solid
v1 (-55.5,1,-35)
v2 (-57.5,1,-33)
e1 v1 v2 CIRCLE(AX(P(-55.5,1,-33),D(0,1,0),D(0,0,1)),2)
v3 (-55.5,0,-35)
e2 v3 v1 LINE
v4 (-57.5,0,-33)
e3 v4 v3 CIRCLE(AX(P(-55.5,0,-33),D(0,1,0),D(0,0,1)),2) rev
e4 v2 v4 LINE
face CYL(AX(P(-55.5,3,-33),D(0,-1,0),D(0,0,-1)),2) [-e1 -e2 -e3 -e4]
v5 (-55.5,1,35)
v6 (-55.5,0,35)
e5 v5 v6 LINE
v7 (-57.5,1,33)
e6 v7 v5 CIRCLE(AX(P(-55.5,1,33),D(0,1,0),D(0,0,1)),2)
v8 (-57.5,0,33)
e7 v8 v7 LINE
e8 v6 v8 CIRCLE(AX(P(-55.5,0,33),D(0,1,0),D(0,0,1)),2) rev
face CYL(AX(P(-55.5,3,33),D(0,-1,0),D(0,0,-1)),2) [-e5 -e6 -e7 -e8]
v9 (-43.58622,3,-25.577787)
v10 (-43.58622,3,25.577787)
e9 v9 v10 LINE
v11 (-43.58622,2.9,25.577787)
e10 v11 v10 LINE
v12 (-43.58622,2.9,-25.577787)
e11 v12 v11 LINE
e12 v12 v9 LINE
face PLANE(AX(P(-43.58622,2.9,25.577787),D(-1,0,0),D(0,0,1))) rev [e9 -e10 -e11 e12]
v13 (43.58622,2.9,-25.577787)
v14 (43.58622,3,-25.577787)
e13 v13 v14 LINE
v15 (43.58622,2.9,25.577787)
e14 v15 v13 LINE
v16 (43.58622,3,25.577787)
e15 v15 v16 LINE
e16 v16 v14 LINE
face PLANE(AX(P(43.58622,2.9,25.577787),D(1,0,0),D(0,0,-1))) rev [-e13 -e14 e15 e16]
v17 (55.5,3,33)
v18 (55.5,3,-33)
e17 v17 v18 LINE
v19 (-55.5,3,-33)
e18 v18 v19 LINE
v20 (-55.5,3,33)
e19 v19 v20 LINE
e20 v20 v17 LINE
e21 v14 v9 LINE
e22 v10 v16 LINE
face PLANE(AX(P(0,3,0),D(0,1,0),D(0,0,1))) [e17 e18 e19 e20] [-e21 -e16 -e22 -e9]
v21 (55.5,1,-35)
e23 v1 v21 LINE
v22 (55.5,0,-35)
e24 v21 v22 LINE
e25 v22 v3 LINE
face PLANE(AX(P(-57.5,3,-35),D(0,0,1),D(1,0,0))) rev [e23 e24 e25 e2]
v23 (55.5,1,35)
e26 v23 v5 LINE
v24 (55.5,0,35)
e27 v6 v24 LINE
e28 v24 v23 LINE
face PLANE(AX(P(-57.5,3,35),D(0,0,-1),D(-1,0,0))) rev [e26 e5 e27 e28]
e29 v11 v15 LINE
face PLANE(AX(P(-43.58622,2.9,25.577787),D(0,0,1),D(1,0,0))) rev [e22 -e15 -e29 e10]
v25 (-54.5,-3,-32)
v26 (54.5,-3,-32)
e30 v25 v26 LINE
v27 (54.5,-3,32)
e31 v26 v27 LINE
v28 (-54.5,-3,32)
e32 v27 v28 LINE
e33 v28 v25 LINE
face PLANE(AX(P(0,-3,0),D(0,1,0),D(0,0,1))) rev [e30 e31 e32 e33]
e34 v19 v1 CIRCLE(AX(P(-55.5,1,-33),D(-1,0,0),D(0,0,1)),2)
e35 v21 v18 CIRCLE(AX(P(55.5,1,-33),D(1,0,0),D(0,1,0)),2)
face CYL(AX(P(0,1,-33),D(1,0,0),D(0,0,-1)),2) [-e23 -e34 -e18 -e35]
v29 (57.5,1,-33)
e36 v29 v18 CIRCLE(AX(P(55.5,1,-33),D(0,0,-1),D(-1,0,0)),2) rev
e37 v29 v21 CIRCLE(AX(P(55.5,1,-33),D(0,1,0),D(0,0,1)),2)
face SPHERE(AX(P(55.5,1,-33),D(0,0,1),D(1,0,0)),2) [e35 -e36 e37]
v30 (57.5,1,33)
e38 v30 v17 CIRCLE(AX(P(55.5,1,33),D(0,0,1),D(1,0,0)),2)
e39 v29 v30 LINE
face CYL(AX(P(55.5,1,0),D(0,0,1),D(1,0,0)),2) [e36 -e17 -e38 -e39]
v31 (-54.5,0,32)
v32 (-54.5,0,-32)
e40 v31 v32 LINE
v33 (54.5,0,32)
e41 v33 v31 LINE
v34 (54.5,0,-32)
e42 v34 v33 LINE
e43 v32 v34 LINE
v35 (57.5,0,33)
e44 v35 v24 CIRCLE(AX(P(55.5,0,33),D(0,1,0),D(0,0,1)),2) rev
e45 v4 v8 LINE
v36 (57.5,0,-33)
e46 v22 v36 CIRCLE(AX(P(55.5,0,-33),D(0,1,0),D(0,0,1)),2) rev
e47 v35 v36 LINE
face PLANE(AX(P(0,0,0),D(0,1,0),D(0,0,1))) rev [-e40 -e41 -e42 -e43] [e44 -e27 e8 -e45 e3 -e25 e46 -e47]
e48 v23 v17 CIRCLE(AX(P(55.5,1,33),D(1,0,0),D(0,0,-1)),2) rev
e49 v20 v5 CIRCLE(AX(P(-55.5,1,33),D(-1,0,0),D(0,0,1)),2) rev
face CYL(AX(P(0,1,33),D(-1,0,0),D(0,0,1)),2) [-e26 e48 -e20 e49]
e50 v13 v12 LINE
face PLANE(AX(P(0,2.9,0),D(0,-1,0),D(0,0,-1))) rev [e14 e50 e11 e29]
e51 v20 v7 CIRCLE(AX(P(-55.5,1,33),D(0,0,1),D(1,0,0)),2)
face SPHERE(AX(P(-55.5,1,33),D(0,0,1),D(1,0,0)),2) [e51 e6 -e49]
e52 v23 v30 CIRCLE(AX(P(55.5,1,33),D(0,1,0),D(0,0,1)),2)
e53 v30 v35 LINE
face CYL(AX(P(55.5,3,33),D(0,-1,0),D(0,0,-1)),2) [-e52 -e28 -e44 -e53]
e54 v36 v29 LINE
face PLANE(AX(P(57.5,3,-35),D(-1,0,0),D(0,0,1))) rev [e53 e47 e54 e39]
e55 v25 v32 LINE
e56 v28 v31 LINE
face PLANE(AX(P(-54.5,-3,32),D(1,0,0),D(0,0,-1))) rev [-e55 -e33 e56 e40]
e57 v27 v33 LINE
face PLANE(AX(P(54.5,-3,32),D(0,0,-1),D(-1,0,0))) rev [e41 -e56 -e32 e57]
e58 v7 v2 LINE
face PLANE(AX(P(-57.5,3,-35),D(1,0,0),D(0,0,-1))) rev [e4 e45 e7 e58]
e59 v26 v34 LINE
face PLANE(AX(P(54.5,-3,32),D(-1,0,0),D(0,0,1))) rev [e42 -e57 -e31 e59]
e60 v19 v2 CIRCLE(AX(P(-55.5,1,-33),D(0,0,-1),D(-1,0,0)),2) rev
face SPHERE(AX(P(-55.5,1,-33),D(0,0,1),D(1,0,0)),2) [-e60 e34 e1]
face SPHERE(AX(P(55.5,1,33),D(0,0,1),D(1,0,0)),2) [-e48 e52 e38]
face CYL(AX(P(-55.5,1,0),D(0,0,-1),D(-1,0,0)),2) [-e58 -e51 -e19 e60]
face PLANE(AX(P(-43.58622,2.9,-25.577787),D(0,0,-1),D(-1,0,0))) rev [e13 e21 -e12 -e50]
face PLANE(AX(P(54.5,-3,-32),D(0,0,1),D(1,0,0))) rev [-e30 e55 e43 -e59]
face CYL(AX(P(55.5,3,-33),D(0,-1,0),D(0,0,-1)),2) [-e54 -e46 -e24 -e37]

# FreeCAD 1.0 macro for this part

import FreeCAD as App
import Part
import Sketcher

V = App.Vector


def edges_at(feature, points):
    """Names of the edges that pass closest to the given points."""
    edges = feature.Shape.Edges
    near = lambda p: min(range(len(edges)), key=lambda i: edges[i].distToShape(Part.Vertex(*p))[0])
    return sorted({f"Edge{near(p) + 1}" for p in points})

doc = App.newDocument("Part")
params = doc.addObject("Spreadsheet::Sheet", "Params")
for row, (alias, value) in enumerate([
    ("sketch1_width", "115 mm"),
    ("sketch1_height", "70 mm"),
    ("pad1_length", "3 mm"),
    ("sketch2_width", "109 mm"),
    ("sketch2_height", "64 mm"),
    ("pad2_length", "3 mm"),
    ("fillet_radius", "2 mm"),
    ("pocket1_length", "0.1 mm"),
], start=1):
    params.set(f"A{row}", alias)
    params.set(f"B{row}", "=" + value)
    params.setAlias(f"B{row}", alias)

body = doc.addObject("PartDesign::Body", "Body")

# Sketch on XZ plane
sketch1 = body.newObject("Sketcher::SketchObject", "Sketch")
sketch1.AttachmentSupport = (doc.getObject("XZ_Plane"), [""])
sketch1.MapMode = "FlatFace"
sketch1.addGeometry([
    Part.LineSegment(V(-58, -35, 0), V(-58, 35, 0)),
    Part.LineSegment(V(-58, 35, 0), V(58, 35, 0)),
    Part.LineSegment(V(58, 35, 0), V(58, -35, 0)),
    Part.LineSegment(V(58, -35, 0), V(-58, -35, 0)),
], False)
sketch1.addConstraint([
    Sketcher.Constraint("Coincident", 0, 2, 1, 1),
    Sketcher.Constraint("Coincident", 1, 2, 2, 1),
    Sketcher.Constraint("Coincident", 2, 2, 3, 1),
    Sketcher.Constraint("Coincident", 3, 2, 0, 1),
    Sketcher.Constraint("Vertical", 0),
    Sketcher.Constraint("Horizontal", 1),
    Sketcher.Constraint("Vertical", 2),
    Sketcher.Constraint("Horizontal", 3),
    Sketcher.Constraint("Symmetric", 0, 2, 2, 2, -1, 1),
    Sketcher.Constraint("DistanceX", 1, 1, 1, 2, 115.0),
    Sketcher.Constraint("DistanceY", 0, 1, 0, 2, 70.0),
])
sketch1.setExpression("Constraints[9]", "Params.sketch1_width")
sketch1.setExpression("Constraints[10]", "Params.sketch1_height")
pad1 = body.newObject("PartDesign::Pad", "Pad")
pad1.Profile = sketch1
pad1.setExpression("Length", "Params.pad1_length")
pad1.Reversed = True

# Sketch on XZ plane
sketch2 = body.newObject("Sketcher::SketchObject", "Sketch001")
sketch2.AttachmentSupport = (doc.getObject("XZ_Plane"), [""])
sketch2.MapMode = "FlatFace"
sketch2.addGeometry([
    Part.LineSegment(V(-54, 32, 0), V(-54, -32, 0)),
    Part.LineSegment(V(-54, -32, 0), V(54, -32, 0)),
    Part.LineSegment(V(54, -32, 0), V(54, 32, 0)),
    Part.LineSegment(V(54, 32, 0), V(-54, 32, 0)),
], False)
sketch2.addConstraint([
    Sketcher.Constraint("Coincident", 0, 2, 1, 1),
    Sketcher.Constraint("Coincident", 1, 2, 2, 1),
    Sketcher.Constraint("Coincident", 2, 2, 3, 1),
    Sketcher.Constraint("Coincident", 3, 2, 0, 1),
    Sketcher.Constraint("Vertical", 0),
    Sketcher.Constraint("Horizontal", 1),
    Sketcher.Constraint("Vertical", 2),
    Sketcher.Constraint("Horizontal", 3),
    Sketcher.Constraint("Symmetric", 0, 2, 2, 2, -1, 1),
    Sketcher.Constraint("DistanceX", 1, 1, 1, 2, 109.0),
    Sketcher.Constraint("DistanceY", 0, 2, 0, 1, 64.0),
])
sketch2.setExpression("Constraints[9]", "Params.sketch2_width")
sketch2.setExpression("Constraints[10]", "Params.sketch2_height")
pad2 = body.newObject("PartDesign::Pad", "Pad001")
pad2.Profile = sketch2
pad2.setExpression("Length", "Params.pad2_length")
doc.recompute()

fillet = body.newObject("PartDesign::Fillet", "Fillet")
fillet.Base = (pad2, edges_at(pad2, [
    (-57.5, 3, 0),
    (0, 3, 35),
    (57.5, 3, 0),
    (0, 3, -35),
    (57.5, 1.5, 35),
    (-57.5, 1.5, 35),
    (-57.5, 1.5, -35),
    (57.5, 1.5, -35),
]))
fillet.setExpression("Radius", "Params.fillet_radius")

# Sketch on XZ plane
sketch3 = body.newObject("Sketcher::SketchObject", "Sketch002")
sketch3.AttachmentSupport = (doc.getObject("XZ_Plane"), [""])
sketch3.MapMode = "FlatFace"
sketch3.AttachmentOffset = App.Placement(V(0, 0, -3), App.Rotation())
sketch3.addGeometry([
    Part.LineSegment(V(-44, -26, 0), V(-44, 26, 0)),
    Part.LineSegment(V(-44, 26, 0), V(44, 26, 0)),
    Part.LineSegment(V(44, 26, 0), V(44, -26, 0)),
    Part.LineSegment(V(44, -26, 0), V(-44, -26, 0)),
], False)
sketch3.addConstraint([
    Sketcher.Constraint("Coincident", 0, 2, 1, 1),
    Sketcher.Constraint("Coincident", 1, 2, 2, 1),
    Sketcher.Constraint("Coincident", 2, 2, 3, 1),
    Sketcher.Constraint("Coincident", 3, 2, 0, 1),
    Sketcher.Constraint("Vertical", 0),
    Sketcher.Constraint("Horizontal", 1),
    Sketcher.Constraint("Vertical", 2),
    Sketcher.Constraint("Horizontal", 3),
    Sketcher.Constraint("Symmetric", 0, 2, 2, 2, -1, 1),
    Sketcher.Constraint("DistanceX", 1, 1, 1, 2, 87.17244),
    Sketcher.Constraint("DistanceY", 0, 1, 0, 2, 51.155575),
])
pocket1 = body.newObject("PartDesign::Pocket", "Pocket")
pocket1.Profile = sketch3
pocket1.setExpression("Length", "Params.pocket1_length")
pocket1.Reversed = True

doc.recompute()
